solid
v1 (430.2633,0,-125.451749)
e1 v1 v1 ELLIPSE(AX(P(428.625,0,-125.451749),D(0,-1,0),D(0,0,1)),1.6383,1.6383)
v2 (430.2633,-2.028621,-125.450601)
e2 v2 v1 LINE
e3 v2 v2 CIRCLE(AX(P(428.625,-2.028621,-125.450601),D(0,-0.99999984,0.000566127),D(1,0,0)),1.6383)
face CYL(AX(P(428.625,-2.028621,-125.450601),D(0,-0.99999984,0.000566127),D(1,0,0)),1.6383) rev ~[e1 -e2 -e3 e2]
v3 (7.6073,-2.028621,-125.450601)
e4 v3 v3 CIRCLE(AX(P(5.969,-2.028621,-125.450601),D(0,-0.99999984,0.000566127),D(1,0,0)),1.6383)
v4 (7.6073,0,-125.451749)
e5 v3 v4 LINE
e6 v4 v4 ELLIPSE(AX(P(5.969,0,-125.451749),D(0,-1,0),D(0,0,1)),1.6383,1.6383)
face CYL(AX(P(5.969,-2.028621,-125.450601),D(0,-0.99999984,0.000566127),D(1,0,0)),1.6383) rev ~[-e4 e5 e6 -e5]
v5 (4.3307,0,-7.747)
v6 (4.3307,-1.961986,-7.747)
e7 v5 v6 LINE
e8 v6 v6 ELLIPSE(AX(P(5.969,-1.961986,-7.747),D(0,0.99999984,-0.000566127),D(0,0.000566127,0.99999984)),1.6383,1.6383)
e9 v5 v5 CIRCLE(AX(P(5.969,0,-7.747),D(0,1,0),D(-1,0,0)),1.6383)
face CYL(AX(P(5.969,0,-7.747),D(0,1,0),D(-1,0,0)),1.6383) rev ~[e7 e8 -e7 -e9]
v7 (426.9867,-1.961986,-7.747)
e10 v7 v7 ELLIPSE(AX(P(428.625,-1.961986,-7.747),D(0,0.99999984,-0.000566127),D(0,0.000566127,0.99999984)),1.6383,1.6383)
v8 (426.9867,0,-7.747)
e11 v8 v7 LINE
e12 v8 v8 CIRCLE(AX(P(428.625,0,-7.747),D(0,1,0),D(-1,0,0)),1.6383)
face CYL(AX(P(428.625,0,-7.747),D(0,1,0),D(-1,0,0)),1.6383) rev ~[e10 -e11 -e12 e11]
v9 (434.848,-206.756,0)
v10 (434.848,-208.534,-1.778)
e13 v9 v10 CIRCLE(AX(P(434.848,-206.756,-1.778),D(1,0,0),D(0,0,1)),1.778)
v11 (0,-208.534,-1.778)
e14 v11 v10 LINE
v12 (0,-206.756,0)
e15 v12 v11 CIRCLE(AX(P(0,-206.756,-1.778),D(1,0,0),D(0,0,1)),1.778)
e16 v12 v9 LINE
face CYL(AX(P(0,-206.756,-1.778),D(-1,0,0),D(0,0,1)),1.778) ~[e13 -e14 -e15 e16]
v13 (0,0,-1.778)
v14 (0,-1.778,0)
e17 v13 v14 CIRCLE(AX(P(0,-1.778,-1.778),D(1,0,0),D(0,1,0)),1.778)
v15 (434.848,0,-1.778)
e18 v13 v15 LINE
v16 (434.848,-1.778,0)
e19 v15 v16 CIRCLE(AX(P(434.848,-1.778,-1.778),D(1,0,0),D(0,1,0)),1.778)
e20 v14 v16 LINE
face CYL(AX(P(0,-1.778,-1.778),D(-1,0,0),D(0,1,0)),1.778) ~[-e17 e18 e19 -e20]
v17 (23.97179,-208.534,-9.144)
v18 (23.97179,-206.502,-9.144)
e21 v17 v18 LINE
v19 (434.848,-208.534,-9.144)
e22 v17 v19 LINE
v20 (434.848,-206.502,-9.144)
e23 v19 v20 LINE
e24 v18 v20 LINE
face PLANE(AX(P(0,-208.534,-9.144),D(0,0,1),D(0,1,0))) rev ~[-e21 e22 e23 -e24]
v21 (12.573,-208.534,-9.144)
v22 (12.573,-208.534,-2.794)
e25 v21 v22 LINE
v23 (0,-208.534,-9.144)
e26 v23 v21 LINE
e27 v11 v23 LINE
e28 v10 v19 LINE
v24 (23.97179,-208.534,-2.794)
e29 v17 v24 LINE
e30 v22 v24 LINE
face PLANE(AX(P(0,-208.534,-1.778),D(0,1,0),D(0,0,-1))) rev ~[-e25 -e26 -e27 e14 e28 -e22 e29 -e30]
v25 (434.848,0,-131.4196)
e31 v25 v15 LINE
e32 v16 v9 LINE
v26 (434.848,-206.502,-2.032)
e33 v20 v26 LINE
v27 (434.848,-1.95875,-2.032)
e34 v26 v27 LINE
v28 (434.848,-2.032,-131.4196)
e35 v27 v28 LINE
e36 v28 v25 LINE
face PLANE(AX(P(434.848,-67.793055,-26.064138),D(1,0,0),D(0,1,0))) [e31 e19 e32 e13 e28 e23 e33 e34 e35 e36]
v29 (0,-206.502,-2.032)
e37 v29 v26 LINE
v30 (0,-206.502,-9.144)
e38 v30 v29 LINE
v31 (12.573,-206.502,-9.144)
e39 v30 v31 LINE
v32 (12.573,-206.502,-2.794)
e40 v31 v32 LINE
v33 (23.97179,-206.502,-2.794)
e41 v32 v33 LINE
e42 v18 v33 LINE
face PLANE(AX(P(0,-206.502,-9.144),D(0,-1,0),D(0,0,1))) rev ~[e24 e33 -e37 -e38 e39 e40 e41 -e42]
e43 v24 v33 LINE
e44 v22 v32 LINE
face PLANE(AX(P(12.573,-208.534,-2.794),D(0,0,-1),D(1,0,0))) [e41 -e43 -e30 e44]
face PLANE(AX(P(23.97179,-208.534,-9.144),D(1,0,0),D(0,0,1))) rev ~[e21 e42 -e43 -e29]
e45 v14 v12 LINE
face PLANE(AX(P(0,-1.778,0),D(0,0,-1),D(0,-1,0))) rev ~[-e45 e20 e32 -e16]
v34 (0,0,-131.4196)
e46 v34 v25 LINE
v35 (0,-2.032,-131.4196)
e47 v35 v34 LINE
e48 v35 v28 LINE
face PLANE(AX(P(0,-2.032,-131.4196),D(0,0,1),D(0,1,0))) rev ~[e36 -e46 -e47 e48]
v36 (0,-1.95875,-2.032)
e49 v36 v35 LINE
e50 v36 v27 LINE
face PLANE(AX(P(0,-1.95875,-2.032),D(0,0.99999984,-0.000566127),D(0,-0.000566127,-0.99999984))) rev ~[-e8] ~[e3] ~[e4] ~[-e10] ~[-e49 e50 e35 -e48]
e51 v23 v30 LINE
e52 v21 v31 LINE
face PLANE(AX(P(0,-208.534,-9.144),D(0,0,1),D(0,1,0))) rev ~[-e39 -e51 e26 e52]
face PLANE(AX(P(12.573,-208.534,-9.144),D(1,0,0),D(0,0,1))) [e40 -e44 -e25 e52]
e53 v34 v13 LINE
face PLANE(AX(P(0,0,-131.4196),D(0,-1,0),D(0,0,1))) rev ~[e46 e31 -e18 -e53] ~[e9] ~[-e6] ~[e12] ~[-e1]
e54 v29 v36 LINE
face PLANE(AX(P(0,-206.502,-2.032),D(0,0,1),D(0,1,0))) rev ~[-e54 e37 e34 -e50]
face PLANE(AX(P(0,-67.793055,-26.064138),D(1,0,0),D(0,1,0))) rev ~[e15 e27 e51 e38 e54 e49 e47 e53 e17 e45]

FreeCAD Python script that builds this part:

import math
import FreeCAD as App
import Part
import Sketcher
Q = App.Units.Quantity

doc = App.newDocument("Part")
body = doc.addObject("PartDesign::Body", "Body")

sketch1 = body.newObject("Sketcher::SketchObject", "Sketch")
sketch1.AttachmentSupport = (doc.getObject("YZ_Plane"), [""])
sketch1.MapMode = "FlatFace"
sketch1.addGeometry([
    Part.ArcOfCircle(Part.Circle(App.Vector(-1.8, -1.8, 0), App.Vector(0, 0, 1), 1.8), math.radians(0), math.radians(90)),
    Part.LineSegment(App.Vector(-1.8, 0, 0), App.Vector(-206.8, 0, 0)),
    Part.ArcOfCircle(Part.Circle(App.Vector(-206.8, -1.8, 0), App.Vector(0, 0, 1), 1.8), math.radians(90), math.radians(180)),
    Part.LineSegment(App.Vector(-208.5, -1.8, 0), App.Vector(-208.5, -9.1, 0)),
    Part.LineSegment(App.Vector(-208.5, -9.1, 0), App.Vector(-206.5, -9.1, 0)),
    Part.LineSegment(App.Vector(-206.5, -9.1, 0), App.Vector(-206.5, -2, 0)),
    Part.LineSegment(App.Vector(-206.5, -2, 0), App.Vector(-2, -2, 0)),
    Part.LineSegment(App.Vector(-2, -2, 0), App.Vector(-2, -131.4, 0)),
    Part.LineSegment(App.Vector(-2, -131.4, 0), App.Vector(0, -131.4, 0)),
    Part.LineSegment(App.Vector(0, -131.4, 0), App.Vector(0, -1.8, 0)),
], False)
sketch1.addConstraint([
    Sketcher.Constraint("Tangent", 0, 2, 1, 1),
    Sketcher.Constraint("Tangent", 1, 2, 2, 1),
    Sketcher.Constraint("Tangent", 2, 2, 3, 1),
    Sketcher.Constraint("Coincident", 3, 2, 4, 1),
    Sketcher.Constraint("Coincident", 4, 2, 5, 1),
    Sketcher.Constraint("Coincident", 5, 2, 6, 1),
    Sketcher.Constraint("Coincident", 6, 2, 7, 1),
    Sketcher.Constraint("Coincident", 7, 2, 8, 1),
    Sketcher.Constraint("Coincident", 8, 2, 9, 1),
    Sketcher.Constraint("Tangent", 9, 2, 0, 1),
    Sketcher.Constraint("Horizontal", 1),
    Sketcher.Constraint("Vertical", 3),
    Sketcher.Constraint("Horizontal", 4),
    Sketcher.Constraint("Vertical", 5),
    Sketcher.Constraint("Horizontal", 6),
    Sketcher.Constraint("Horizontal", 8),
    Sketcher.Constraint("Vertical", 9),
    Sketcher.Constraint("Equal", 0, 2),
    Sketcher.Constraint("PointOnObject", 0, 2, -1),
    Sketcher.Constraint("PointOnObject", 8, 2, -2),
    Sketcher.Constraint("Equal", 4, 8),
    Sketcher.Constraint("Radius", 0, Q("0.07 in")),
    Sketcher.Constraint("DistanceX", 1, 2, 1, 1, Q("8.07 in")),
    Sketcher.Constraint("DistanceX", 4, 1, 4, 2, Q("0.08 in")),
    Sketcher.Constraint("DistanceY", 3, 2, 3, 1, Q("0.29 in")),
    Sketcher.Constraint("DistanceY", 5, 1, 5, 2, Q("0.28 in")),
    Sketcher.Constraint("DistanceY", 9, 1, 9, 2, Q("5.104 in")),
    Sketcher.Constraint("DistanceX", 6, 1, 6, 2, 204.54325),
])
pad1 = body.newObject("PartDesign::Pad", "Pad")
pad1.Profile = sketch1
pad1.Length = Q("17.12 in")

sketch2 = body.newObject("Sketcher::SketchObject", "Sketch001")
sketch2.AttachmentSupport = (doc.getObject("XZ_Plane"), [""])
sketch2.MapMode = "FlatFace"
sketch2.AttachmentOffset = App.Placement(App.Vector(0, 0, 8.21 * 25.4), App.Rotation())
sketch2.addGeometry([
    Part.LineSegment(App.Vector(13, -3, 0), App.Vector(13, -9, 0)),
    Part.LineSegment(App.Vector(13, -9, 0), App.Vector(24, -9, 0)),
    Part.LineSegment(App.Vector(24, -9, 0), App.Vector(24, -3, 0)),
    Part.LineSegment(App.Vector(24, -3, 0), App.Vector(13, -3, 0)),
], False)
sketch2.addConstraint([
    Sketcher.Constraint("Coincident", 0, 2, 1, 1),
    Sketcher.Constraint("Coincident", 1, 2, 2, 1),
    Sketcher.Constraint("Coincident", 2, 2, 3, 1),
    Sketcher.Constraint("Coincident", 3, 2, 0, 1),
    Sketcher.Constraint("Vertical", 0),
    Sketcher.Constraint("Horizontal", 1),
    Sketcher.Constraint("Vertical", 2),
    Sketcher.Constraint("Horizontal", 3),
    Sketcher.Constraint("DistanceY", 0, 2, 0, 1, Q("0.25 in")),
    Sketcher.Constraint("DistanceY", 0, 2, -1, 1, Q("0.36 in")),
    Sketcher.Constraint("DistanceX", -1, 1, 0, 2, Q("0.495 in")),
    Sketcher.Constraint("DistanceX", 1, 1, 1, 2, 11.39879),
])
pocket1 = body.newObject("PartDesign::Pocket", "Pocket")
pocket1.Profile = sketch2
pocket1.Length = Q("1 in")

sketch3 = body.newObject("Sketcher::SketchObject", "Sketch002")
sketch3.Placement = App.Placement(App.Vector(0, -1.957599, 0.001108), App.Rotation(App.Vector(1, 0, 0), App.Vector(0, 0.000566127, 0.99999984), App.Vector(0, -0.99999984, 0.000566127), "ZXY"))
sketch3.addGeometry([
    Part.Circle(App.Vector(6, -125.5, 0), App.Vector(0, 0, 1), 1.6),
    Part.Circle(App.Vector(428.6, -125.5, 0), App.Vector(0, 0, 1), 1.6),
], False)
sketch3.addConstraint([
    Sketcher.Constraint("Equal", 0, 1),
    Sketcher.Constraint("Horizontal", 0, 3, 1, 3),
    Sketcher.Constraint("Diameter", 0, Q("0.129 in")),
    Sketcher.Constraint("DistanceX", 0, 3, 1, 3, Q("16.64 in")),
    Sketcher.Constraint("DistanceX", -1, 1, 0, 3, Q("0.235 in")),
    Sketcher.Constraint("DistanceY", 0, 3, -1, 1, 125.451729),
])
pocket2 = body.newObject("PartDesign::Pocket", "Pocket001")
pocket2.Profile = sketch3
pocket2.Length = Q("1 in")

sketch4 = body.newObject("Sketcher::SketchObject", "Sketch003")
sketch4.AttachmentSupport = (doc.getObject("XZ_Plane"), [""])
sketch4.MapMode = "FlatFace"
sketch4.addGeometry([
    Part.Circle(App.Vector(428.6, -7.7, 0), App.Vector(0, 0, 1), 1.6),
    Part.Circle(App.Vector(6, -7.7, 0), App.Vector(0, 0, 1), 1.6),
], False)
sketch4.addConstraint([
    Sketcher.Constraint("Equal", 0, 1),
    Sketcher.Constraint("Horizontal", 0, 3, 1, 3),
    Sketcher.Constraint("Diameter", 0, Q("0.129 in")),
    Sketcher.Constraint("DistanceX", 1, 3, 0, 3, Q("16.64 in")),
    Sketcher.Constraint("DistanceX", -1, 1, 0, 3, Q("16.875 in")),
    Sketcher.Constraint("DistanceY", 0, 3, -1, 1, Q("0.305 in")),
])
pocket3 = body.newObject("PartDesign::Pocket", "Pocket002")
pocket3.Profile = sketch4
pocket3.Length = Q("1 in")
pocket3.Reversed = True

doc.recompute()
